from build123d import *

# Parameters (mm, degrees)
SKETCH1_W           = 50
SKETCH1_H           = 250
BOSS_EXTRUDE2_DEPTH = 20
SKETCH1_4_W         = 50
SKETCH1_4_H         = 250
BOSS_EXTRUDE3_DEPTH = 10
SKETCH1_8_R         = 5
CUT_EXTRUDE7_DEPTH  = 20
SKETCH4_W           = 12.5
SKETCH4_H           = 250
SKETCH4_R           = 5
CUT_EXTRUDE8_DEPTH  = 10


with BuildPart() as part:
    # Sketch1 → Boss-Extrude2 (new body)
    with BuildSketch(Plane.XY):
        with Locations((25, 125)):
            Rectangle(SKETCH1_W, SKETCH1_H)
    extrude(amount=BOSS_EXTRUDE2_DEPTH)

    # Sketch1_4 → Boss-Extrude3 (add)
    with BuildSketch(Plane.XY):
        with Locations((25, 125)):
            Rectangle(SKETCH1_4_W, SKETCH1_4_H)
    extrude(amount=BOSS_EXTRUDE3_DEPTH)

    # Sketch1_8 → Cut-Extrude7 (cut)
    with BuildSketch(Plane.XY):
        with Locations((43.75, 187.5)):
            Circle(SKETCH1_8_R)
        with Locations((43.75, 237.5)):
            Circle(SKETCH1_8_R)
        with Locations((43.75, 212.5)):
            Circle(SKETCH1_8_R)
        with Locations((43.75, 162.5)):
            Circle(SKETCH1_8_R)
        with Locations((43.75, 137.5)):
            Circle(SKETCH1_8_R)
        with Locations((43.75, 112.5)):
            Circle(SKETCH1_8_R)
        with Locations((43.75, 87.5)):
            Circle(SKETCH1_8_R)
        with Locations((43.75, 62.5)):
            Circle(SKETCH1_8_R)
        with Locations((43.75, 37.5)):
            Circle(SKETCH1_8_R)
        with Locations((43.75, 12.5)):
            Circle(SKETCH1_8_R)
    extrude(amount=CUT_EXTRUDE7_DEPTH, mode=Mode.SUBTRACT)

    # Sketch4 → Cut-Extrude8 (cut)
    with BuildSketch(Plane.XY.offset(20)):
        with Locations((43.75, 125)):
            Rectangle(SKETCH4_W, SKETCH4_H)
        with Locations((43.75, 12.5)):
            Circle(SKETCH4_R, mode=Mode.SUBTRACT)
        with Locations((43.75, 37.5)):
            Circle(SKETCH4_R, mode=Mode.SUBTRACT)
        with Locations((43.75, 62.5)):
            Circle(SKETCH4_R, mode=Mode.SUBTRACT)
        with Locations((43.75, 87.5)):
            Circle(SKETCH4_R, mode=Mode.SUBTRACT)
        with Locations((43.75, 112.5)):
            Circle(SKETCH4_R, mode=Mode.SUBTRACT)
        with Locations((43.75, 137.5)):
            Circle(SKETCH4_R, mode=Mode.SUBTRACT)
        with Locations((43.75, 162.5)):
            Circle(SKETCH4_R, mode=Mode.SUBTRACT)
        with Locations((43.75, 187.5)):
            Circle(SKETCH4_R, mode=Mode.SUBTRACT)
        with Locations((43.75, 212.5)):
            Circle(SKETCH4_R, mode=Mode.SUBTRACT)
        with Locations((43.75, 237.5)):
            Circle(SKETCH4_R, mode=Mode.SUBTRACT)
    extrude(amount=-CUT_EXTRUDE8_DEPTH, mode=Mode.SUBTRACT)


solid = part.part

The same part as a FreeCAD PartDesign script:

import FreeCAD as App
import Part
import Sketcher

V = App.Vector
Q = App.Units.Quantity


def add_polygon(sketch, points):
    """Adds a closed chain of lines whose ends are joined by coincident constraints."""
    first, n = sketch.GeometryCount, len(points)
    for a, b in zip(points, points[1:] + points[:1]):
        sketch.addGeometry(Part.LineSegment(App.Vector(*a, 0), App.Vector(*b, 0)), False)
    for i in range(n):
        sketch.addConstraint(Sketcher.Constraint("Coincident", first + i, 2, first + (i + 1) % n, 1))

doc = App.newDocument("Part")
body = doc.addObject("PartDesign::Body", "Body")

# Sketch on XY plane
sketch1 = body.newObject("Sketcher::SketchObject", "Sketch")
sketch1.AttachmentSupport = (doc.getObject("XY_Plane"), [""])
sketch1.MapMode = "FlatFace"
add_polygon(sketch1, [(0, 250), (0, 0), (50, 0), (50, 250)])  # lines 0-3
sketch1.addConstraint([
    Sketcher.Constraint("Vertical", 0),
    Sketcher.Constraint("Horizontal", 1),
    Sketcher.Constraint("Vertical", 2),
    Sketcher.Constraint("Horizontal", 3),
    Sketcher.Constraint("Coincident", 0, 2, -1, 1),
    Sketcher.Constraint("DistanceX", 1, 1, 1, 2, Q("50 mm")),
    Sketcher.Constraint("DistanceY", 0, 2, 0, 1, Q("250 mm")),
])
pad1 = body.newObject("PartDesign::Pad", "Pad")
pad1.Profile = sketch1
pad1.Length = 20

# Sketch on XY plane
sketch2 = body.newObject("Sketcher::SketchObject", "Sketch001")
sketch2.AttachmentSupport = (doc.getObject("XY_Plane"), [""])
sketch2.MapMode = "FlatFace"
add_polygon(sketch2, [(0, 250), (0, 0), (50, 0), (50, 250)])  # lines 0-3
sketch2.addConstraint([
    Sketcher.Constraint("Vertical", 0),
    Sketcher.Constraint("Horizontal", 1),
    Sketcher.Constraint("Vertical", 2),
    Sketcher.Constraint("Horizontal", 3),
    Sketcher.Constraint("Coincident", 0, 2, -1, 1),
    Sketcher.Constraint("DistanceX", 1, 1, 1, 2, Q("50 mm")),
    Sketcher.Constraint("DistanceY", 0, 2, 0, 1, Q("250 mm")),
])
pad2 = body.newObject("PartDesign::Pad", "Pad001")
pad2.Profile = sketch2
pad2.Length = 10

# Sketch on XY plane
sketch3 = body.newObject("Sketcher::SketchObject", "Sketch002")
sketch3.AttachmentSupport = (doc.getObject("XY_Plane"), [""])
sketch3.MapMode = "FlatFace"
sketch3.addGeometry([
    Part.Circle(V(43.75, 187.5, 0), V(0, 0, 1), 5),  # 0
    Part.Circle(V(43.75, 237.5, 0), V(0, 0, 1), 5),  # 1
    Part.Circle(V(43.75, 212.5, 0), V(0, 0, 1), 5),  # 2
    Part.Circle(V(43.75, 162.5, 0), V(0, 0, 1), 5),  # 3
    Part.Circle(V(43.75, 137.5, 0), V(0, 0, 1), 5),  # 4
    Part.Circle(V(43.75, 112.5, 0), V(0, 0, 1), 5),  # 5
    Part.Circle(V(43.75, 87.5, 0), V(0, 0, 1), 5),  # 6
    Part.Circle(V(43.75, 62.5, 0), V(0, 0, 1), 5),  # 7
    Part.Circle(V(43.75, 37.5, 0), V(0, 0, 1), 5),  # 8
    Part.Circle(V(43.75, 12.5, 0), V(0, 0, 1), 5),  # 9
], False)
sketch3.addConstraint([
    Sketcher.Constraint("Equal", 0, 1),
    Sketcher.Constraint("Equal", 1, 2),
    Sketcher.Constraint("Equal", 2, 3),
    Sketcher.Constraint("Equal", 3, 4),
    Sketcher.Constraint("Equal", 4, 5),
    Sketcher.Constraint("Equal", 5, 6),
    Sketcher.Constraint("Equal", 6, 7),
    Sketcher.Constraint("Equal", 7, 8),
    Sketcher.Constraint("Equal", 8, 9),
    Sketcher.Constraint("Vertical", 0, 3, 1, 3),
    Sketcher.Constraint("Vertical", 1, 3, 2, 3),
    Sketcher.Constraint("Vertical", 2, 3, 3, 3),
    Sketcher.Constraint("Vertical", 3, 3, 4, 3),
    Sketcher.Constraint("Vertical", 4, 3, 5, 3),
    Sketcher.Constraint("Vertical", 5, 3, 6, 3),
    Sketcher.Constraint("Vertical", 6, 3, 7, 3),
    Sketcher.Constraint("Vertical", 7, 3, 8, 3),
    Sketcher.Constraint("Vertical", 8, 3, 9, 3),
    Sketcher.Constraint("Diameter", 0, Q("10 mm")),
    Sketcher.Constraint("DistanceY", 0, 3, 1, 3, Q("50 mm")),
    Sketcher.Constraint("DistanceY", 0, 3, 2, 3, Q("25 mm")),
    Sketcher.Constraint("DistanceY", 3, 3, 0, 3, Q("25 mm")),
    Sketcher.Constraint("DistanceY", 4, 3, 3, 3, Q("25 mm")),
    Sketcher.Constraint("DistanceY", 5, 3, 4, 3, Q("25 mm")),
    Sketcher.Constraint("DistanceY", 6, 3, 5, 3, Q("25 mm")),
    Sketcher.Constraint("DistanceY", 7, 3, 6, 3, Q("25 mm")),
    Sketcher.Constraint("DistanceY", 8, 3, 7, 3, Q("25 mm")),
    Sketcher.Constraint("DistanceY", 9, 3, 8, 3, Q("25 mm")),
    Sketcher.Constraint("DistanceY", -1, 1, 0, 3, Q("187.5 mm")),
    Sketcher.Constraint("DistanceX", -1, 1, 0, 3, Q("43.75 mm")),
])
pocket1 = body.newObject("PartDesign::Pocket", "Pocket")
pocket1.Profile = sketch3
pocket1.Length = 20
pocket1.Reversed = True

# Sketch on XY plane
sketch4 = body.newObject("Sketcher::SketchObject", "Sketch003")
sketch4.AttachmentSupport = (doc.getObject("XY_Plane"), [""])
sketch4.MapMode = "FlatFace"
sketch4.AttachmentOffset = App.Placement(V(0, 0, 20), App.Rotation())
add_polygon(sketch4, [(37.5, 250), (37.5, 0), (50, 0), (50, 250)])  # lines 0-3
sketch4.addGeometry(Part.Circle(V(43.75, 12.5, 0), V(0, 0, 1), 5), False)  # 4
sketch4.addGeometry(Part.Circle(V(43.75, 37.5, 0), V(0, 0, 1), 5), False)  # 5
sketch4.addGeometry(Part.Circle(V(43.75, 62.5, 0), V(0, 0, 1), 5), False)  # 6
sketch4.addGeometry(Part.Circle(V(43.75, 87.5, 0), V(0, 0, 1), 5), False)  # 7
sketch4.addGeometry(Part.Circle(V(43.75, 112.5, 0), V(0, 0, 1), 5), False)  # 8
sketch4.addGeometry(Part.Circle(V(43.75, 137.5, 0), V(0, 0, 1), 5), False)  # 9
sketch4.addGeometry(Part.Circle(V(43.75, 162.5, 0), V(0, 0, 1), 5), False)  # 10
sketch4.addGeometry(Part.Circle(V(43.75, 187.5, 0), V(0, 0, 1), 5), False)  # 11
sketch4.addGeometry(Part.Circle(V(43.75, 212.5, 0), V(0, 0, 1), 5), False)  # 12
sketch4.addGeometry(Part.Circle(V(43.75, 237.5, 0), V(0, 0, 1), 5), False)  # 13
sketch4.addConstraint([
    Sketcher.Constraint("Vertical", 0),
    Sketcher.Constraint("Horizontal", 1),
    Sketcher.Constraint("Vertical", 2),
    Sketcher.Constraint("Horizontal", 3),
    Sketcher.Constraint("Equal", 4, 5),
    Sketcher.Constraint("Equal", 5, 6),
    Sketcher.Constraint("Equal", 6, 7),
    Sketcher.Constraint("Equal", 7, 8),
    Sketcher.Constraint("Equal", 8, 9),
    Sketcher.Constraint("Equal", 9, 10),
    Sketcher.Constraint("Equal", 10, 11),
    Sketcher.Constraint("Equal", 11, 12),
    Sketcher.Constraint("Equal", 12, 13),
    Sketcher.Constraint("PointOnObject", 0, 2, -1),
    Sketcher.Constraint("Vertical", 4, 3, 5, 3),
    Sketcher.Constraint("Vertical", 5, 3, 6, 3),
    Sketcher.Constraint("Vertical", 6, 3, 7, 3),
    Sketcher.Constraint("Vertical", 7, 3, 8, 3),
    Sketcher.Constraint("Vertical", 8, 3, 9, 3),
    Sketcher.Constraint("Vertical", 9, 3, 10, 3),
    Sketcher.Constraint("Vertical", 10, 3, 11, 3),
    Sketcher.Constraint("Vertical", 11, 3, 12, 3),
    Sketcher.Constraint("Vertical", 12, 3, 13, 3),
    Sketcher.Constraint("Diameter", 4, Q("10 mm")),
    Sketcher.Constraint("DistanceY", 0, 2, 0, 1, Q("250 mm")),
    Sketcher.Constraint("DistanceX", 1, 1, 1, 2, Q("12.5 mm")),
    Sketcher.Constraint("DistanceX", -1, 1, 1, 2, Q("50 mm")),
    Sketcher.Constraint("DistanceY", 4, 3, 5, 3, Q("25 mm")),
    Sketcher.Constraint("DistanceY", 5, 3, 6, 3, Q("25 mm")),
    Sketcher.Constraint("DistanceY", 6, 3, 7, 3, Q("25 mm")),
    Sketcher.Constraint("DistanceY", 7, 3, 8, 3, Q("25 mm")),
    Sketcher.Constraint("DistanceY", 8, 3, 9, 3, Q("25 mm")),
    Sketcher.Constraint("DistanceY", 9, 3, 10, 3, Q("25 mm")),
    Sketcher.Constraint("DistanceY", 10, 3, 11, 3, Q("25 mm")),
    Sketcher.Constraint("DistanceY", 11, 3, 12, 3, Q("25 mm")),
    Sketcher.Constraint("DistanceY", 12, 3, 13, 3, Q("25 mm")),
    Sketcher.Constraint("DistanceY", -1, 1, 4, 3, Q("12.5 mm")),
    Sketcher.Constraint("DistanceX", -1, 1, 4, 3, Q("43.75 mm")),
])
pocket2 = body.newObject("PartDesign::Pocket", "Pocket001")
pocket2.Profile = sketch4
pocket2.Length = 10

doc.recompute()
